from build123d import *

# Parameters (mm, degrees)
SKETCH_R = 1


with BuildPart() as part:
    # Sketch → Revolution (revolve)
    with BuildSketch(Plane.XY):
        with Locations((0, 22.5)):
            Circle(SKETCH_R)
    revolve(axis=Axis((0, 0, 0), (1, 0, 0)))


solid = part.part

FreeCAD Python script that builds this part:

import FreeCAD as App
import Part
import Sketcher
Q = App.Units.Quantity

doc = App.newDocument("Part")
params = doc.addObject("Spreadsheet::Sheet", "Params")
for row, (alias, value) in enumerate([
    ("sketch1_diameter", "2 mm"),
    ("revolution_angle", "360 deg"),
], start=1):
    params.set(f"A{row}", alias)
    params.set(f"B{row}", "=" + value)
    params.setAlias(f"B{row}", alias)

body = doc.addObject("PartDesign::Body", "Body")

sketch1 = doc.addObject("Sketcher::SketchObject", "Sketch")
body.addObject(sketch1)
sketch1.AttachmentSupport = (doc.XY_Plane, [""])
sketch1.MapMode = "FlatFace"
sketch1.addGeometry(Part.Circle(App.Vector(0, 22.5, 0), App.Vector(0, 0, 1), 1), False)
sketch1.addConstraint(Sketcher.Constraint("PointOnObject", 0, 3, -2))
sketch1.addConstraint(Sketcher.Constraint("Diameter", 0, Q("2 mm")))
sketch1.addConstraint(Sketcher.Constraint("DistanceY", -1, 1, 0, 3, Q("22.5 mm")))
sketch1.setExpression("Constraints[1]", "Params.sketch1_diameter")
revolution = doc.addObject("PartDesign::Revolution", "Revolution")
body.addObject(revolution)
revolution.Profile = sketch1
revolution.ReferenceAxis = (sketch1, ["H_Axis"])
revolution.setExpression("Angle", "Params.revolution_angle")

doc.recompute()
